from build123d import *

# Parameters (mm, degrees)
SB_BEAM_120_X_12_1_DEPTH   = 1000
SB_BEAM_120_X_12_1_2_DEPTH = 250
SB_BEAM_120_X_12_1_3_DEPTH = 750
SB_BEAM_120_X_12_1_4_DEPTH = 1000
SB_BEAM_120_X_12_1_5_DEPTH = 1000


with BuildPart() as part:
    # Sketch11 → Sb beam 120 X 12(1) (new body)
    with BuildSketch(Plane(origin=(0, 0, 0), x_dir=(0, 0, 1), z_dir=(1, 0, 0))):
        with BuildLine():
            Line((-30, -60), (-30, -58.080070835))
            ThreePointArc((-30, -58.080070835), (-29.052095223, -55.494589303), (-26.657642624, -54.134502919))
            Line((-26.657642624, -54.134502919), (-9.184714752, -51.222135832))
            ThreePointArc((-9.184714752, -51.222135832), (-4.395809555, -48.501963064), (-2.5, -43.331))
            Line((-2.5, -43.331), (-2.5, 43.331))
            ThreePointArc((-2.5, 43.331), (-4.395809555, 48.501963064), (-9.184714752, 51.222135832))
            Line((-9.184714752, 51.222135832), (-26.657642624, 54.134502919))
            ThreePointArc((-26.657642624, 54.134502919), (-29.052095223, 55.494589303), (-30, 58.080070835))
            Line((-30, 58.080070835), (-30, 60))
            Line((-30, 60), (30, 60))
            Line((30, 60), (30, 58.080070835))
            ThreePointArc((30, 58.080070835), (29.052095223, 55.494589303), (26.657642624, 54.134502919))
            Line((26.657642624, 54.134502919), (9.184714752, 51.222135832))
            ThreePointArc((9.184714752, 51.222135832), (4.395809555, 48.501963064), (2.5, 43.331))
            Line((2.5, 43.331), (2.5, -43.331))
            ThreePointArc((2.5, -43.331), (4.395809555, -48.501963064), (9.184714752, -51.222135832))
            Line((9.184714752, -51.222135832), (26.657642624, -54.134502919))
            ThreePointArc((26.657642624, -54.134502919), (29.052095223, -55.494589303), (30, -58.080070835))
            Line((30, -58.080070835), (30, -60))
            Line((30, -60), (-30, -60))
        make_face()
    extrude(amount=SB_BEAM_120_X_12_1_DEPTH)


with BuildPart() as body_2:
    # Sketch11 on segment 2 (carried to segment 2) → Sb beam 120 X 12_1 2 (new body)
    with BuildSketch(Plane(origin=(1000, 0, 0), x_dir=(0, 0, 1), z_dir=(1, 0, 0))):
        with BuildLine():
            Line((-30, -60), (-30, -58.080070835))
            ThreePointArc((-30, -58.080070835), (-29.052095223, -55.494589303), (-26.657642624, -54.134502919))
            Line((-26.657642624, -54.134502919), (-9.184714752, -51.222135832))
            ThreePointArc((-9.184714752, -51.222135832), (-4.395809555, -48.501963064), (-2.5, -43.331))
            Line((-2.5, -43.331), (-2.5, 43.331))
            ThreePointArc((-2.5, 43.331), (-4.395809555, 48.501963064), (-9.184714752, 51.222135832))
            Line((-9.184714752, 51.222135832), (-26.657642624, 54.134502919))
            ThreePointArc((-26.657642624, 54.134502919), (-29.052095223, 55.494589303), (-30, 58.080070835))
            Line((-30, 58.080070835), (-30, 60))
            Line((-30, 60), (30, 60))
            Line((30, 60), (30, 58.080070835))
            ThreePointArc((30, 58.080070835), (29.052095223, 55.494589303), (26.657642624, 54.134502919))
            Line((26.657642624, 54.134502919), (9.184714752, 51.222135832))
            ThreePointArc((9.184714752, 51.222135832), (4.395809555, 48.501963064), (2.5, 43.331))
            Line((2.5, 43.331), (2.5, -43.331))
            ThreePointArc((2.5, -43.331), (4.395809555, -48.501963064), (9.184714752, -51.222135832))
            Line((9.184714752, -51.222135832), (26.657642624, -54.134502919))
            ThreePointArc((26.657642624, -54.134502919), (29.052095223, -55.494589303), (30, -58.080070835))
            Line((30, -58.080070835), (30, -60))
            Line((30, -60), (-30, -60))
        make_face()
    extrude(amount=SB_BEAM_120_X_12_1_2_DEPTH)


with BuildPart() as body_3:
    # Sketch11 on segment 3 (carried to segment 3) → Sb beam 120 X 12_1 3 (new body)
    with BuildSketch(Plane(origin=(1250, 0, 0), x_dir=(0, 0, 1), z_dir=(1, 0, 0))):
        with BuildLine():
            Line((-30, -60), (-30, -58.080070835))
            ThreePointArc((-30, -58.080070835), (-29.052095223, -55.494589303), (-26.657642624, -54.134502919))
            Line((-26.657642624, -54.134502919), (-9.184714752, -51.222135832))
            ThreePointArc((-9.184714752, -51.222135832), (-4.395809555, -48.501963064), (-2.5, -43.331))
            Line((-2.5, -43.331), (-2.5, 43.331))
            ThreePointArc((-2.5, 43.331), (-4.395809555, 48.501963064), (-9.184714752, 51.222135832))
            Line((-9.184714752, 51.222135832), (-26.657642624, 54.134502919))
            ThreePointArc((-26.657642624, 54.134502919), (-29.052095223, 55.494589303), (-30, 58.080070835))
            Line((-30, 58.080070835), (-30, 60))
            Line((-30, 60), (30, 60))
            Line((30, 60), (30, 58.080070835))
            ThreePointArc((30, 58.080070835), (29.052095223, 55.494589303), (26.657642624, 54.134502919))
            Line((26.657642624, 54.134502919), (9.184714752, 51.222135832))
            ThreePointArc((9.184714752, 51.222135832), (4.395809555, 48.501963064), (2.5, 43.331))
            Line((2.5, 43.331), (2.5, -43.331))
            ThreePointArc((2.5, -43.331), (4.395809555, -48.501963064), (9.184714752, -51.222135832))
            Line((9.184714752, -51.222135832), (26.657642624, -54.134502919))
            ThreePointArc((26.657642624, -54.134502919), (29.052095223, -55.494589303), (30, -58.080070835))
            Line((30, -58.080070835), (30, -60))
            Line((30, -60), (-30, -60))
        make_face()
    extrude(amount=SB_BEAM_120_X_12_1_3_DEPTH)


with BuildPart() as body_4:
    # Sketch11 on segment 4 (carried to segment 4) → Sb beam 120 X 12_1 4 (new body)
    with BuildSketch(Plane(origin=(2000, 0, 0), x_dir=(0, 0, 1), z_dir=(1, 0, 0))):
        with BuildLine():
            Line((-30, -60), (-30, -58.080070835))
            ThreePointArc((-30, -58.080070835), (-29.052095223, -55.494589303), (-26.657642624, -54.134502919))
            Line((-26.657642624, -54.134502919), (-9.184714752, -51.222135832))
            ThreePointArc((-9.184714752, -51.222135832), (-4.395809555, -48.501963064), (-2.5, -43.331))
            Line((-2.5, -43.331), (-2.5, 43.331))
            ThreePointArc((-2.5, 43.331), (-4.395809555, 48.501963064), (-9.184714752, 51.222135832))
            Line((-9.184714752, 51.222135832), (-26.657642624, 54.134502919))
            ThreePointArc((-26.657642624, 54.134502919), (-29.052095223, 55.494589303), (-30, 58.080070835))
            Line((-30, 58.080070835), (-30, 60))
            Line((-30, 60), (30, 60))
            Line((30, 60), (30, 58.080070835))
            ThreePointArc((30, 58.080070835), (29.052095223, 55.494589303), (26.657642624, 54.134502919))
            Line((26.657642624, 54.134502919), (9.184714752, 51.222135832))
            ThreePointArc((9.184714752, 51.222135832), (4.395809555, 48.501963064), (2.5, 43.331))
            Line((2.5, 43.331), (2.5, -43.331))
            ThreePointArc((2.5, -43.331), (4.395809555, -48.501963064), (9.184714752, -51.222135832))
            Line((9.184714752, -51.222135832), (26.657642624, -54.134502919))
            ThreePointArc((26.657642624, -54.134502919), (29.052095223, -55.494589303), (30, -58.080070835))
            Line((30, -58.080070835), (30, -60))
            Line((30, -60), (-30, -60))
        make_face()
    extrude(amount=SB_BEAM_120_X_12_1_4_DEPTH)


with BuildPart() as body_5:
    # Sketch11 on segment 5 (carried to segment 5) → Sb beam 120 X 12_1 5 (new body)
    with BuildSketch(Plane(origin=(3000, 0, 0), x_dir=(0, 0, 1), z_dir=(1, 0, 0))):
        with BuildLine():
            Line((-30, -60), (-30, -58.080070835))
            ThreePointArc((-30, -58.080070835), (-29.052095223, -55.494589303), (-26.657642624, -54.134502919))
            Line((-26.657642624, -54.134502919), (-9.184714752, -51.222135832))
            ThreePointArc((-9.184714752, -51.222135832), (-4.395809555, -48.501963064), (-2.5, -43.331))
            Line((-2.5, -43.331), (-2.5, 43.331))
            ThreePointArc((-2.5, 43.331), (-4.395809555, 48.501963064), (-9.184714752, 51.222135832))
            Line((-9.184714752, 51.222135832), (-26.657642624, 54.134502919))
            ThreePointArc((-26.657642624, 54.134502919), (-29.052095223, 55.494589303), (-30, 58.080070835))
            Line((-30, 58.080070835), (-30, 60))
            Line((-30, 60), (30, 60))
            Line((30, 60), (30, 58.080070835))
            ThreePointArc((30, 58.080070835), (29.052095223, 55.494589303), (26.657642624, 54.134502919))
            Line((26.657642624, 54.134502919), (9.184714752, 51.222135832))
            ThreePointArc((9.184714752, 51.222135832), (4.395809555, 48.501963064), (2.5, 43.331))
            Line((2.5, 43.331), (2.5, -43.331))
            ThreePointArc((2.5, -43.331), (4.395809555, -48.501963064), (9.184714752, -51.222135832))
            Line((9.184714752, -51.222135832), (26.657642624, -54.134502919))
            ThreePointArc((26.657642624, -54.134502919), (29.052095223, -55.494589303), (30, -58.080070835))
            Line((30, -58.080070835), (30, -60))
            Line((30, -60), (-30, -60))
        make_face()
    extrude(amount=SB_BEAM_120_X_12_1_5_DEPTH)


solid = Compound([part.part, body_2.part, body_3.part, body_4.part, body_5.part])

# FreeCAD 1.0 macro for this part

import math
import FreeCAD as App
import Part
import Sketcher

V = App.Vector
Q = App.Units.Quantity

doc = App.newDocument("Part")
body = doc.addObject("PartDesign::Body", "Body")

# Sketch on YZ plane
sketch1 = body.newObject("Sketcher::SketchObject", "Sketch")
sketch1.AttachmentSupport = (doc.getObject("YZ_Plane"), [""])
sketch1.MapMode = "FlatFace"
sketch1.addGeometry(Part.LineSegment(V(58.1, -30, 0), V(60, -30, 0)), False)
sketch1.addGeometry(Part.LineSegment(V(60, -30, 0), V(60, 30, 0)), False)
sketch1.addGeometry(Part.LineSegment(V(60, 30, 0), V(58.1, 30, 0)), False)
sketch1.addGeometry(Part.ArcOfCircle(Part.Circle(V(58.1, 26, 0), V(0, 0, 1), 4), math.radians(90), math.radians(171)), False)
sketch1.addGeometry(Part.LineSegment(V(54.1, 26.7, 0), V(51.2, 9.2, 0)), False)
sketch1.addGeometry(Part.ArcOfCircle(Part.Circle(V(43.3, 10.5, 0), V(0, 0, 1), 8), math.radians(-90), math.radians(-9)), False)
sketch1.addGeometry(Part.LineSegment(V(43.3, 2.5, 0), V(-43.3, 2.5, 0)), False)
sketch1.addGeometry(Part.ArcOfCircle(Part.Circle(V(-43.3, 10.5, 0), V(0, 0, 1), 8), math.radians(-171), math.radians(-90)), False)
sketch1.addGeometry(Part.LineSegment(V(-51.2, 9.2, 0), V(-54.1, 26.7, 0)), False)
sketch1.addGeometry(Part.ArcOfCircle(Part.Circle(V(-58.1, 26, 0), V(0, 0, 1), 4), math.radians(9), math.radians(90)), False)
sketch1.addGeometry(Part.LineSegment(V(-58.1, 30, 0), V(-60, 30, 0)), False)
sketch1.addGeometry(Part.LineSegment(V(-60, 30, 0), V(-60, -30, 0)), False)
sketch1.addGeometry(Part.LineSegment(V(-60, -30, 0), V(-58.1, -30, 0)), False)
sketch1.addGeometry(Part.ArcOfCircle(Part.Circle(V(-58.1, -26, 0), V(0, 0, 1), 4), math.radians(-90), math.radians(-9)), False)
sketch1.addGeometry(Part.LineSegment(V(-54.1, -26.7, 0), V(-51.2, -9.2, 0)), False)
sketch1.addGeometry(Part.ArcOfCircle(Part.Circle(V(-43.3, -10.5, 0), V(0, 0, 1), 8), math.radians(90), math.radians(171)), False)
sketch1.addGeometry(Part.LineSegment(V(-43.3, -2.5, 0), V(43.3, -2.5, 0)), False)
sketch1.addGeometry(Part.ArcOfCircle(Part.Circle(V(43.3, -10.5, 0), V(0, 0, 1), 8), math.radians(9), math.radians(90)), False)
sketch1.addGeometry(Part.LineSegment(V(51.2, -9.2, 0), V(54.1, -26.7, 0)), False)
sketch1.addGeometry(Part.ArcOfCircle(Part.Circle(V(58.1, -26, 0), V(0, 0, 1), 4), math.radians(-171), math.radians(-90)), False)
sketch1.addConstraint(Sketcher.Constraint("Coincident", 0, 2, 1, 1))
sketch1.addConstraint(Sketcher.Constraint("Coincident", 1, 2, 2, 1))
sketch1.addConstraint(Sketcher.Constraint("Tangent", 2, 2, 3, 1))
sketch1.addConstraint(Sketcher.Constraint("Tangent", 3, 2, 4, 1))
sketch1.addConstraint(Sketcher.Constraint("Tangent", 4, 2, 5, 2))
sketch1.addConstraint(Sketcher.Constraint("Tangent", 5, 1, 6, 1))
sketch1.addConstraint(Sketcher.Constraint("Tangent", 6, 2, 7, 2))
sketch1.addConstraint(Sketcher.Constraint("Tangent", 7, 1, 8, 1))
sketch1.addConstraint(Sketcher.Constraint("Tangent", 8, 2, 9, 1))
sketch1.addConstraint(Sketcher.Constraint("Tangent", 9, 2, 10, 1))
sketch1.addConstraint(Sketcher.Constraint("Coincident", 10, 2, 11, 1))
sketch1.addConstraint(Sketcher.Constraint("Coincident", 11, 2, 12, 1))
sketch1.addConstraint(Sketcher.Constraint("Tangent", 12, 2, 13, 1))
sketch1.addConstraint(Sketcher.Constraint("Tangent", 13, 2, 14, 1))
sketch1.addConstraint(Sketcher.Constraint("Tangent", 14, 2, 15, 2))
sketch1.addConstraint(Sketcher.Constraint("Tangent", 15, 1, 16, 1))
sketch1.addConstraint(Sketcher.Constraint("Tangent", 16, 2, 17, 2))
sketch1.addConstraint(Sketcher.Constraint("Tangent", 17, 1, 18, 1))
sketch1.addConstraint(Sketcher.Constraint("Tangent", 18, 2, 19, 1))
sketch1.addConstraint(Sketcher.Constraint("Tangent", 19, 2, 0, 1))
sketch1.addConstraint(Sketcher.Constraint("Horizontal", 0))
sketch1.addConstraint(Sketcher.Constraint("Vertical", 1))
sketch1.addConstraint(Sketcher.Constraint("Horizontal", 2))
sketch1.addConstraint(Sketcher.Constraint("Horizontal", 6))
sketch1.addConstraint(Sketcher.Constraint("Horizontal", 10))
sketch1.addConstraint(Sketcher.Constraint("Vertical", 11))
sketch1.addConstraint(Sketcher.Constraint("Horizontal", 12))
sketch1.addConstraint(Sketcher.Constraint("Horizontal", 16))
sketch1.addConstraint(Sketcher.Constraint("Equal", 5, 7))
sketch1.addConstraint(Sketcher.Constraint("Equal", 3, 9))
sketch1.addConstraint(Sketcher.Constraint("Equal", 9, 13))
sketch1.addConstraint(Sketcher.Constraint("Equal", 7, 15))
sketch1.addConstraint(Sketcher.Constraint("Equal", 15, 17))
sketch1.addConstraint(Sketcher.Constraint("Equal", 13, 19))
sketch1.addConstraint(Sketcher.Constraint("Symmetric", 3, 3, 13, 3, -1, 1))
sketch1.addConstraint(Sketcher.Constraint("Symmetric", 5, 3, 15, 3, -1, 1))
sketch1.addConstraint(Sketcher.Constraint("Symmetric", 9, 3, 19, 3, -1, 1))
sketch1.addConstraint(Sketcher.Constraint("Symmetric", 3, 3, 9, 3, -2))
sketch1.addConstraint(Sketcher.Constraint("Parallel", 8, 18))
sketch1.addConstraint(Sketcher.Constraint("Horizontal", 4, 2, 7, 1))
sketch1.addConstraint(Sketcher.Constraint("Equal", 2, 10))
sketch1.addConstraint(Sketcher.Constraint("Radius", 3, Q("4 mm")))
sketch1.addConstraint(Sketcher.Constraint("Radius", 5, Q("8 mm")))
sketch1.addConstraint(Sketcher.Constraint("DistanceY", 1, 1, 1, 2, Q("60 mm")))
sketch1.addConstraint(Sketcher.Constraint("DistanceX", -1, 1, 0, 2, Q("60 mm")))
sketch1.addConstraint(Sketcher.Constraint("DistanceY", 15, 3, 7, 3, Q("21 mm")))
sketch1.addConstraint(Sketcher.Constraint("DistanceX", 6, 2, 6, 1, Q("86.662 mm")))
sketch1.addConstraint(Sketcher.Constraint("DistanceX", 0, 1, 0, 2, Q("1.919929 mm")))
pad1 = body.newObject("PartDesign::Pad", "Pad")
pad1.Profile = sketch1
pad1.Length = 1000
body2 = doc.addObject("PartDesign::Body", "Body001")

# Sketch on YZ plane
sketch2 = body2.newObject("Sketcher::SketchObject", "Sketch001")
sketch2.AttachmentSupport = (doc.getObject("YZ_Plane001"), [""])
sketch2.MapMode = "FlatFace"
sketch2.AttachmentOffset = App.Placement(V(0, 0, 1000), App.Rotation())
sketch2.addGeometry(Part.LineSegment(V(58.1, -30, 0), V(60, -30, 0)), False)
sketch2.addGeometry(Part.LineSegment(V(60, -30, 0), V(60, 30, 0)), False)
sketch2.addGeometry(Part.LineSegment(V(60, 30, 0), V(58.1, 30, 0)), False)
sketch2.addGeometry(Part.ArcOfCircle(Part.Circle(V(58.1, 26, 0), V(0, 0, 1), 4), math.radians(90), math.radians(171)), False)
sketch2.addGeometry(Part.LineSegment(V(54.1, 26.7, 0), V(51.2, 9.2, 0)), False)
sketch2.addGeometry(Part.ArcOfCircle(Part.Circle(V(43.3, 10.5, 0), V(0, 0, 1), 8), math.radians(-90), math.radians(-9)), False)
sketch2.addGeometry(Part.LineSegment(V(43.3, 2.5, 0), V(-43.3, 2.5, 0)), False)
sketch2.addGeometry(Part.ArcOfCircle(Part.Circle(V(-43.3, 10.5, 0), V(0, 0, 1), 8), math.radians(-171), math.radians(-90)), False)
sketch2.addGeometry(Part.LineSegment(V(-51.2, 9.2, 0), V(-54.1, 26.7, 0)), False)
sketch2.addGeometry(Part.ArcOfCircle(Part.Circle(V(-58.1, 26, 0), V(0, 0, 1), 4), math.radians(9), math.radians(90)), False)
sketch2.addGeometry(Part.LineSegment(V(-58.1, 30, 0), V(-60, 30, 0)), False)
sketch2.addGeometry(Part.LineSegment(V(-60, 30, 0), V(-60, -30, 0)), False)
sketch2.addGeometry(Part.LineSegment(V(-60, -30, 0), V(-58.1, -30, 0)), False)
sketch2.addGeometry(Part.ArcOfCircle(Part.Circle(V(-58.1, -26, 0), V(0, 0, 1), 4), math.radians(-90), math.radians(-9)), False)
sketch2.addGeometry(Part.LineSegment(V(-54.1, -26.7, 0), V(-51.2, -9.2, 0)), False)
sketch2.addGeometry(Part.ArcOfCircle(Part.Circle(V(-43.3, -10.5, 0), V(0, 0, 1), 8), math.radians(90), math.radians(171)), False)
sketch2.addGeometry(Part.LineSegment(V(-43.3, -2.5, 0), V(43.3, -2.5, 0)), False)
sketch2.addGeometry(Part.ArcOfCircle(Part.Circle(V(43.3, -10.5, 0), V(0, 0, 1), 8), math.radians(9), math.radians(90)), False)
sketch2.addGeometry(Part.LineSegment(V(51.2, -9.2, 0), V(54.1, -26.7, 0)), False)
sketch2.addGeometry(Part.ArcOfCircle(Part.Circle(V(58.1, -26, 0), V(0, 0, 1), 4), math.radians(-171), math.radians(-90)), False)
sketch2.addConstraint(Sketcher.Constraint("Coincident", 0, 2, 1, 1))
sketch2.addConstraint(Sketcher.Constraint("Coincident", 1, 2, 2, 1))
sketch2.addConstraint(Sketcher.Constraint("Tangent", 2, 2, 3, 1))
sketch2.addConstraint(Sketcher.Constraint("Tangent", 3, 2, 4, 1))
sketch2.addConstraint(Sketcher.Constraint("Tangent", 4, 2, 5, 2))
sketch2.addConstraint(Sketcher.Constraint("Tangent", 5, 1, 6, 1))
sketch2.addConstraint(Sketcher.Constraint("Tangent", 6, 2, 7, 2))
sketch2.addConstraint(Sketcher.Constraint("Tangent", 7, 1, 8, 1))
sketch2.addConstraint(Sketcher.Constraint("Tangent", 8, 2, 9, 1))
sketch2.addConstraint(Sketcher.Constraint("Tangent", 9, 2, 10, 1))
sketch2.addConstraint(Sketcher.Constraint("Coincident", 10, 2, 11, 1))
sketch2.addConstraint(Sketcher.Constraint("Coincident", 11, 2, 12, 1))
sketch2.addConstraint(Sketcher.Constraint("Tangent", 12, 2, 13, 1))
sketch2.addConstraint(Sketcher.Constraint("Tangent", 13, 2, 14, 1))
sketch2.addConstraint(Sketcher.Constraint("Tangent", 14, 2, 15, 2))
sketch2.addConstraint(Sketcher.Constraint("Tangent", 15, 1, 16, 1))
sketch2.addConstraint(Sketcher.Constraint("Tangent", 16, 2, 17, 2))
sketch2.addConstraint(Sketcher.Constraint("Tangent", 17, 1, 18, 1))
sketch2.addConstraint(Sketcher.Constraint("Tangent", 18, 2, 19, 1))
sketch2.addConstraint(Sketcher.Constraint("Tangent", 19, 2, 0, 1))
sketch2.addConstraint(Sketcher.Constraint("Horizontal", 0))
sketch2.addConstraint(Sketcher.Constraint("Vertical", 1))
sketch2.addConstraint(Sketcher.Constraint("Horizontal", 2))
sketch2.addConstraint(Sketcher.Constraint("Horizontal", 6))
sketch2.addConstraint(Sketcher.Constraint("Horizontal", 10))
sketch2.addConstraint(Sketcher.Constraint("Vertical", 11))
sketch2.addConstraint(Sketcher.Constraint("Horizontal", 12))
sketch2.addConstraint(Sketcher.Constraint("Horizontal", 16))
sketch2.addConstraint(Sketcher.Constraint("Equal", 5, 7))
sketch2.addConstraint(Sketcher.Constraint("Equal", 3, 9))
sketch2.addConstraint(Sketcher.Constraint("Equal", 9, 13))
sketch2.addConstraint(Sketcher.Constraint("Equal", 7, 15))
sketch2.addConstraint(Sketcher.Constraint("Equal", 15, 17))
sketch2.addConstraint(Sketcher.Constraint("Equal", 13, 19))
sketch2.addConstraint(Sketcher.Constraint("Symmetric", 3, 3, 13, 3, -1, 1))
sketch2.addConstraint(Sketcher.Constraint("Symmetric", 5, 3, 15, 3, -1, 1))
sketch2.addConstraint(Sketcher.Constraint("Symmetric", 9, 3, 19, 3, -1, 1))
sketch2.addConstraint(Sketcher.Constraint("Symmetric", 3, 3, 9, 3, -2))
sketch2.addConstraint(Sketcher.Constraint("Parallel", 8, 18))
sketch2.addConstraint(Sketcher.Constraint("Horizontal", 4, 2, 7, 1))
sketch2.addConstraint(Sketcher.Constraint("Equal", 2, 10))
sketch2.addConstraint(Sketcher.Constraint("Radius", 3, Q("4 mm")))
sketch2.addConstraint(Sketcher.Constraint("Radius", 5, Q("8 mm")))
sketch2.addConstraint(Sketcher.Constraint("DistanceY", 1, 1, 1, 2, Q("60 mm")))
sketch2.addConstraint(Sketcher.Constraint("DistanceX", -1, 1, 0, 2, Q("60 mm")))
sketch2.addConstraint(Sketcher.Constraint("DistanceY", 15, 3, 7, 3, Q("21 mm")))
sketch2.addConstraint(Sketcher.Constraint("DistanceX", 6, 2, 6, 1, Q("86.662 mm")))
sketch2.addConstraint(Sketcher.Constraint("DistanceX", 0, 1, 0, 2, Q("1.919929 mm")))
pad2 = body2.newObject("PartDesign::Pad", "Pad001")
pad2.Profile = sketch2
pad2.Length = 250
body3 = doc.addObject("PartDesign::Body", "Body002")

# Sketch on YZ plane
sketch3 = body3.newObject("Sketcher::SketchObject", "Sketch002")
sketch3.AttachmentSupport = (doc.getObject("YZ_Plane002"), [""])
sketch3.MapMode = "FlatFace"
sketch3.AttachmentOffset = App.Placement(V(0, 0, 1250), App.Rotation())
sketch3.addGeometry(Part.LineSegment(V(58.1, -30, 0), V(60, -30, 0)), False)
sketch3.addGeometry(Part.LineSegment(V(60, -30, 0), V(60, 30, 0)), False)
sketch3.addGeometry(Part.LineSegment(V(60, 30, 0), V(58.1, 30, 0)), False)
sketch3.addGeometry(Part.ArcOfCircle(Part.Circle(V(58.1, 26, 0), V(0, 0, 1), 4), math.radians(90), math.radians(171)), False)
sketch3.addGeometry(Part.LineSegment(V(54.1, 26.7, 0), V(51.2, 9.2, 0)), False)
sketch3.addGeometry(Part.ArcOfCircle(Part.Circle(V(43.3, 10.5, 0), V(0, 0, 1), 8), math.radians(-90), math.radians(-9)), False)
sketch3.addGeometry(Part.LineSegment(V(43.3, 2.5, 0), V(-43.3, 2.5, 0)), False)
sketch3.addGeometry(Part.ArcOfCircle(Part.Circle(V(-43.3, 10.5, 0), V(0, 0, 1), 8), math.radians(-171), math.radians(-90)), False)
sketch3.addGeometry(Part.LineSegment(V(-51.2, 9.2, 0), V(-54.1, 26.7, 0)), False)
sketch3.addGeometry(Part.ArcOfCircle(Part.Circle(V(-58.1, 26, 0), V(0, 0, 1), 4), math.radians(9), math.radians(90)), False)
sketch3.addGeometry(Part.LineSegment(V(-58.1, 30, 0), V(-60, 30, 0)), False)
sketch3.addGeometry(Part.LineSegment(V(-60, 30, 0), V(-60, -30, 0)), False)
sketch3.addGeometry(Part.LineSegment(V(-60, -30, 0), V(-58.1, -30, 0)), False)
sketch3.addGeometry(Part.ArcOfCircle(Part.Circle(V(-58.1, -26, 0), V(0, 0, 1), 4), math.radians(-90), math.radians(-9)), False)
sketch3.addGeometry(Part.LineSegment(V(-54.1, -26.7, 0), V(-51.2, -9.2, 0)), False)
sketch3.addGeometry(Part.ArcOfCircle(Part.Circle(V(-43.3, -10.5, 0), V(0, 0, 1), 8), math.radians(90), math.radians(171)), False)
sketch3.addGeometry(Part.LineSegment(V(-43.3, -2.5, 0), V(43.3, -2.5, 0)), False)
sketch3.addGeometry(Part.ArcOfCircle(Part.Circle(V(43.3, -10.5, 0), V(0, 0, 1), 8), math.radians(9), math.radians(90)), False)
sketch3.addGeometry(Part.LineSegment(V(51.2, -9.2, 0), V(54.1, -26.7, 0)), False)
sketch3.addGeometry(Part.ArcOfCircle(Part.Circle(V(58.1, -26, 0), V(0, 0, 1), 4), math.radians(-171), math.radians(-90)), False)
sketch3.addConstraint(Sketcher.Constraint("Coincident", 0, 2, 1, 1))
sketch3.addConstraint(Sketcher.Constraint("Coincident", 1, 2, 2, 1))
sketch3.addConstraint(Sketcher.Constraint("Tangent", 2, 2, 3, 1))
sketch3.addConstraint(Sketcher.Constraint("Tangent", 3, 2, 4, 1))
sketch3.addConstraint(Sketcher.Constraint("Tangent", 4, 2, 5, 2))
sketch3.addConstraint(Sketcher.Constraint("Tangent", 5, 1, 6, 1))
sketch3.addConstraint(Sketcher.Constraint("Tangent", 6, 2, 7, 2))
sketch3.addConstraint(Sketcher.Constraint("Tangent", 7, 1, 8, 1))
sketch3.addConstraint(Sketcher.Constraint("Tangent", 8, 2, 9, 1))
sketch3.addConstraint(Sketcher.Constraint("Tangent", 9, 2, 10, 1))
sketch3.addConstraint(Sketcher.Constraint("Coincident", 10, 2, 11, 1))
sketch3.addConstraint(Sketcher.Constraint("Coincident", 11, 2, 12, 1))
sketch3.addConstraint(Sketcher.Constraint("Tangent", 12, 2, 13, 1))
sketch3.addConstraint(Sketcher.Constraint("Tangent", 13, 2, 14, 1))
sketch3.addConstraint(Sketcher.Constraint("Tangent", 14, 2, 15, 2))
sketch3.addConstraint(Sketcher.Constraint("Tangent", 15, 1, 16, 1))
sketch3.addConstraint(Sketcher.Constraint("Tangent", 16, 2, 17, 2))
sketch3.addConstraint(Sketcher.Constraint("Tangent", 17, 1, 18, 1))
sketch3.addConstraint(Sketcher.Constraint("Tangent", 18, 2, 19, 1))
sketch3.addConstraint(Sketcher.Constraint("Tangent", 19, 2, 0, 1))
sketch3.addConstraint(Sketcher.Constraint("Horizontal", 0))
sketch3.addConstraint(Sketcher.Constraint("Vertical", 1))
sketch3.addConstraint(Sketcher.Constraint("Horizontal", 2))
sketch3.addConstraint(Sketcher.Constraint("Horizontal", 6))
sketch3.addConstraint(Sketcher.Constraint("Horizontal", 10))
sketch3.addConstraint(Sketcher.Constraint("Vertical", 11))
sketch3.addConstraint(Sketcher.Constraint("Horizontal", 12))
sketch3.addConstraint(Sketcher.Constraint("Horizontal", 16))
sketch3.addConstraint(Sketcher.Constraint("Equal", 5, 7))
sketch3.addConstraint(Sketcher.Constraint("Equal", 3, 9))
sketch3.addConstraint(Sketcher.Constraint("Equal", 9, 13))
sketch3.addConstraint(Sketcher.Constraint("Equal", 7, 15))
sketch3.addConstraint(Sketcher.Constraint("Equal", 15, 17))
sketch3.addConstraint(Sketcher.Constraint("Equal", 13, 19))
sketch3.addConstraint(Sketcher.Constraint("Symmetric", 3, 3, 13, 3, -1, 1))
sketch3.addConstraint(Sketcher.Constraint("Symmetric", 5, 3, 15, 3, -1, 1))
sketch3.addConstraint(Sketcher.Constraint("Symmetric", 9, 3, 19, 3, -1, 1))
sketch3.addConstraint(Sketcher.Constraint("Symmetric", 3, 3, 9, 3, -2))
sketch3.addConstraint(Sketcher.Constraint("Parallel", 8, 18))
sketch3.addConstraint(Sketcher.Constraint("Horizontal", 4, 2, 7, 1))
sketch3.addConstraint(Sketcher.Constraint("Equal", 2, 10))
sketch3.addConstraint(Sketcher.Constraint("Radius", 3, Q("4 mm")))
sketch3.addConstraint(Sketcher.Constraint("Radius", 5, Q("8 mm")))
sketch3.addConstraint(Sketcher.Constraint("DistanceY", 1, 1, 1, 2, Q("60 mm")))
sketch3.addConstraint(Sketcher.Constraint("DistanceX", -1, 1, 0, 2, Q("60 mm")))
sketch3.addConstraint(Sketcher.Constraint("DistanceY", 15, 3, 7, 3, Q("21 mm")))
sketch3.addConstraint(Sketcher.Constraint("DistanceX", 6, 2, 6, 1, Q("86.662 mm")))
sketch3.addConstraint(Sketcher.Constraint("DistanceX", 0, 1, 0, 2, Q("1.919929 mm")))
pad3 = body3.newObject("PartDesign::Pad", "Pad002")
pad3.Profile = sketch3
pad3.Length = 750
body4 = doc.addObject("PartDesign::Body", "Body003")

# Sketch on YZ plane
sketch4 = body4.newObject("Sketcher::SketchObject", "Sketch003")
sketch4.AttachmentSupport = (doc.getObject("YZ_Plane003"), [""])
sketch4.MapMode = "FlatFace"
sketch4.AttachmentOffset = App.Placement(V(0, 0, 2000), App.Rotation())
sketch4.addGeometry(Part.LineSegment(V(58.1, -30, 0), V(60, -30, 0)), False)
sketch4.addGeometry(Part.LineSegment(V(60, -30, 0), V(60, 30, 0)), False)
sketch4.addGeometry(Part.LineSegment(V(60, 30, 0), V(58.1, 30, 0)), False)
sketch4.addGeometry(Part.ArcOfCircle(Part.Circle(V(58.1, 26, 0), V(0, 0, 1), 4), math.radians(90), math.radians(171)), False)
sketch4.addGeometry(Part.LineSegment(V(54.1, 26.7, 0), V(51.2, 9.2, 0)), False)
sketch4.addGeometry(Part.ArcOfCircle(Part.Circle(V(43.3, 10.5, 0), V(0, 0, 1), 8), math.radians(-90), math.radians(-9)), False)
sketch4.addGeometry(Part.LineSegment(V(43.3, 2.5, 0), V(-43.3, 2.5, 0)), False)
sketch4.addGeometry(Part.ArcOfCircle(Part.Circle(V(-43.3, 10.5, 0), V(0, 0, 1), 8), math.radians(-171), math.radians(-90)), False)
sketch4.addGeometry(Part.LineSegment(V(-51.2, 9.2, 0), V(-54.1, 26.7, 0)), False)
sketch4.addGeometry(Part.ArcOfCircle(Part.Circle(V(-58.1, 26, 0), V(0, 0, 1), 4), math.radians(9), math.radians(90)), False)
sketch4.addGeometry(Part.LineSegment(V(-58.1, 30, 0), V(-60, 30, 0)), False)
sketch4.addGeometry(Part.LineSegment(V(-60, 30, 0), V(-60, -30, 0)), False)
sketch4.addGeometry(Part.LineSegment(V(-60, -30, 0), V(-58.1, -30, 0)), False)
sketch4.addGeometry(Part.ArcOfCircle(Part.Circle(V(-58.1, -26, 0), V(0, 0, 1), 4), math.radians(-90), math.radians(-9)), False)
sketch4.addGeometry(Part.LineSegment(V(-54.1, -26.7, 0), V(-51.2, -9.2, 0)), False)
sketch4.addGeometry(Part.ArcOfCircle(Part.Circle(V(-43.3, -10.5, 0), V(0, 0, 1), 8), math.radians(90), math.radians(171)), False)
sketch4.addGeometry(Part.LineSegment(V(-43.3, -2.5, 0), V(43.3, -2.5, 0)), False)
sketch4.addGeometry(Part.ArcOfCircle(Part.Circle(V(43.3, -10.5, 0), V(0, 0, 1), 8), math.radians(9), math.radians(90)), False)
sketch4.addGeometry(Part.LineSegment(V(51.2, -9.2, 0), V(54.1, -26.7, 0)), False)
sketch4.addGeometry(Part.ArcOfCircle(Part.Circle(V(58.1, -26, 0), V(0, 0, 1), 4), math.radians(-171), math.radians(-90)), False)
sketch4.addConstraint(Sketcher.Constraint("Coincident", 0, 2, 1, 1))
sketch4.addConstraint(Sketcher.Constraint("Coincident", 1, 2, 2, 1))
sketch4.addConstraint(Sketcher.Constraint("Tangent", 2, 2, 3, 1))
sketch4.addConstraint(Sketcher.Constraint("Tangent", 3, 2, 4, 1))
sketch4.addConstraint(Sketcher.Constraint("Tangent", 4, 2, 5, 2))
sketch4.addConstraint(Sketcher.Constraint("Tangent", 5, 1, 6, 1))
sketch4.addConstraint(Sketcher.Constraint("Tangent", 6, 2, 7, 2))
sketch4.addConstraint(Sketcher.Constraint("Tangent", 7, 1, 8, 1))
sketch4.addConstraint(Sketcher.Constraint("Tangent", 8, 2, 9, 1))
sketch4.addConstraint(Sketcher.Constraint("Tangent", 9, 2, 10, 1))
sketch4.addConstraint(Sketcher.Constraint("Coincident", 10, 2, 11, 1))
sketch4.addConstraint(Sketcher.Constraint("Coincident", 11, 2, 12, 1))
sketch4.addConstraint(Sketcher.Constraint("Tangent", 12, 2, 13, 1))
sketch4.addConstraint(Sketcher.Constraint("Tangent", 13, 2, 14, 1))
sketch4.addConstraint(Sketcher.Constraint("Tangent", 14, 2, 15, 2))
sketch4.addConstraint(Sketcher.Constraint("Tangent", 15, 1, 16, 1))
sketch4.addConstraint(Sketcher.Constraint("Tangent", 16, 2, 17, 2))
sketch4.addConstraint(Sketcher.Constraint("Tangent", 17, 1, 18, 1))
sketch4.addConstraint(Sketcher.Constraint("Tangent", 18, 2, 19, 1))
sketch4.addConstraint(Sketcher.Constraint("Tangent", 19, 2, 0, 1))
sketch4.addConstraint(Sketcher.Constraint("Horizontal", 0))
sketch4.addConstraint(Sketcher.Constraint("Vertical", 1))
sketch4.addConstraint(Sketcher.Constraint("Horizontal", 2))
sketch4.addConstraint(Sketcher.Constraint("Horizontal", 6))
sketch4.addConstraint(Sketcher.Constraint("Horizontal", 10))
sketch4.addConstraint(Sketcher.Constraint("Vertical", 11))
sketch4.addConstraint(Sketcher.Constraint("Horizontal", 12))
sketch4.addConstraint(Sketcher.Constraint("Horizontal", 16))
sketch4.addConstraint(Sketcher.Constraint("Equal", 5, 7))
sketch4.addConstraint(Sketcher.Constraint("Equal", 3, 9))
sketch4.addConstraint(Sketcher.Constraint("Equal", 9, 13))
sketch4.addConstraint(Sketcher.Constraint("Equal", 7, 15))
sketch4.addConstraint(Sketcher.Constraint("Equal", 15, 17))
sketch4.addConstraint(Sketcher.Constraint("Equal", 13, 19))
sketch4.addConstraint(Sketcher.Constraint("Symmetric", 3, 3, 13, 3, -1, 1))
sketch4.addConstraint(Sketcher.Constraint("Symmetric", 5, 3, 15, 3, -1, 1))
sketch4.addConstraint(Sketcher.Constraint("Symmetric", 9, 3, 19, 3, -1, 1))
sketch4.addConstraint(Sketcher.Constraint("Symmetric", 3, 3, 9, 3, -2))
sketch4.addConstraint(Sketcher.Constraint("Parallel", 8, 18))
sketch4.addConstraint(Sketcher.Constraint("Horizontal", 4, 2, 7, 1))
sketch4.addConstraint(Sketcher.Constraint("Equal", 2, 10))
sketch4.addConstraint(Sketcher.Constraint("Radius", 3, Q("4 mm")))
sketch4.addConstraint(Sketcher.Constraint("Radius", 5, Q("8 mm")))
sketch4.addConstraint(Sketcher.Constraint("DistanceY", 1, 1, 1, 2, Q("60 mm")))
sketch4.addConstraint(Sketcher.Constraint("DistanceX", -1, 1, 0, 2, Q("60 mm")))
sketch4.addConstraint(Sketcher.Constraint("DistanceY", 15, 3, 7, 3, Q("21 mm")))
sketch4.addConstraint(Sketcher.Constraint("DistanceX", 6, 2, 6, 1, Q("86.662 mm")))
sketch4.addConstraint(Sketcher.Constraint("DistanceX", 0, 1, 0, 2, Q("1.919929 mm")))
pad4 = body4.newObject("PartDesign::Pad", "Pad003")
pad4.Profile = sketch4
pad4.Length = 1000
body5 = doc.addObject("PartDesign::Body", "Body004")

# Sketch on YZ plane
sketch5 = body5.newObject("Sketcher::SketchObject", "Sketch004")
sketch5.AttachmentSupport = (doc.getObject("YZ_Plane004"), [""])
sketch5.MapMode = "FlatFace"
sketch5.AttachmentOffset = App.Placement(V(0, 0, 3000), App.Rotation())
sketch5.addGeometry(Part.LineSegment(V(58.1, -30, 0), V(60, -30, 0)), False)
sketch5.addGeometry(Part.LineSegment(V(60, -30, 0), V(60, 30, 0)), False)
sketch5.addGeometry(Part.LineSegment(V(60, 30, 0), V(58.1, 30, 0)), False)
sketch5.addGeometry(Part.ArcOfCircle(Part.Circle(V(58.1, 26, 0), V(0, 0, 1), 4), math.radians(90), math.radians(171)), False)
sketch5.addGeometry(Part.LineSegment(V(54.1, 26.7, 0), V(51.2, 9.2, 0)), False)
sketch5.addGeometry(Part.ArcOfCircle(Part.Circle(V(43.3, 10.5, 0), V(0, 0, 1), 8), math.radians(-90), math.radians(-9)), False)
sketch5.addGeometry(Part.LineSegment(V(43.3, 2.5, 0), V(-43.3, 2.5, 0)), False)
sketch5.addGeometry(Part.ArcOfCircle(Part.Circle(V(-43.3, 10.5, 0), V(0, 0, 1), 8), math.radians(-171), math.radians(-90)), False)
sketch5.addGeometry(Part.LineSegment(V(-51.2, 9.2, 0), V(-54.1, 26.7, 0)), False)
sketch5.addGeometry(Part.ArcOfCircle(Part.Circle(V(-58.1, 26, 0), V(0, 0, 1), 4), math.radians(9), math.radians(90)), False)
sketch5.addGeometry(Part.LineSegment(V(-58.1, 30, 0), V(-60, 30, 0)), False)
sketch5.addGeometry(Part.LineSegment(V(-60, 30, 0), V(-60, -30, 0)), False)
sketch5.addGeometry(Part.LineSegment(V(-60, -30, 0), V(-58.1, -30, 0)), False)
sketch5.addGeometry(Part.ArcOfCircle(Part.Circle(V(-58.1, -26, 0), V(0, 0, 1), 4), math.radians(-90), math.radians(-9)), False)
sketch5.addGeometry(Part.LineSegment(V(-54.1, -26.7, 0), V(-51.2, -9.2, 0)), False)
sketch5.addGeometry(Part.ArcOfCircle(Part.Circle(V(-43.3, -10.5, 0), V(0, 0, 1), 8), math.radians(90), math.radians(171)), False)
sketch5.addGeometry(Part.LineSegment(V(-43.3, -2.5, 0), V(43.3, -2.5, 0)), False)
sketch5.addGeometry(Part.ArcOfCircle(Part.Circle(V(43.3, -10.5, 0), V(0, 0, 1), 8), math.radians(9), math.radians(90)), False)
sketch5.addGeometry(Part.LineSegment(V(51.2, -9.2, 0), V(54.1, -26.7, 0)), False)
sketch5.addGeometry(Part.ArcOfCircle(Part.Circle(V(58.1, -26, 0), V(0, 0, 1), 4), math.radians(-171), math.radians(-90)), False)
sketch5.addConstraint(Sketcher.Constraint("Coincident", 0, 2, 1, 1))
sketch5.addConstraint(Sketcher.Constraint("Coincident", 1, 2, 2, 1))
sketch5.addConstraint(Sketcher.Constraint("Tangent", 2, 2, 3, 1))
sketch5.addConstraint(Sketcher.Constraint("Tangent", 3, 2, 4, 1))
sketch5.addConstraint(Sketcher.Constraint("Tangent", 4, 2, 5, 2))
sketch5.addConstraint(Sketcher.Constraint("Tangent", 5, 1, 6, 1))
sketch5.addConstraint(Sketcher.Constraint("Tangent", 6, 2, 7, 2))
sketch5.addConstraint(Sketcher.Constraint("Tangent", 7, 1, 8, 1))
sketch5.addConstraint(Sketcher.Constraint("Tangent", 8, 2, 9, 1))
sketch5.addConstraint(Sketcher.Constraint("Tangent", 9, 2, 10, 1))
sketch5.addConstraint(Sketcher.Constraint("Coincident", 10, 2, 11, 1))
sketch5.addConstraint(Sketcher.Constraint("Coincident", 11, 2, 12, 1))
sketch5.addConstraint(Sketcher.Constraint("Tangent", 12, 2, 13, 1))
sketch5.addConstraint(Sketcher.Constraint("Tangent", 13, 2, 14, 1))
sketch5.addConstraint(Sketcher.Constraint("Tangent", 14, 2, 15, 2))
sketch5.addConstraint(Sketcher.Constraint("Tangent", 15, 1, 16, 1))
sketch5.addConstraint(Sketcher.Constraint("Tangent", 16, 2, 17, 2))
sketch5.addConstraint(Sketcher.Constraint("Tangent", 17, 1, 18, 1))
sketch5.addConstraint(Sketcher.Constraint("Tangent", 18, 2, 19, 1))
sketch5.addConstraint(Sketcher.Constraint("Tangent", 19, 2, 0, 1))
sketch5.addConstraint(Sketcher.Constraint("Horizontal", 0))
sketch5.addConstraint(Sketcher.Constraint("Vertical", 1))
sketch5.addConstraint(Sketcher.Constraint("Horizontal", 2))
sketch5.addConstraint(Sketcher.Constraint("Horizontal", 6))
sketch5.addConstraint(Sketcher.Constraint("Horizontal", 10))
sketch5.addConstraint(Sketcher.Constraint("Vertical", 11))
sketch5.addConstraint(Sketcher.Constraint("Horizontal", 12))
sketch5.addConstraint(Sketcher.Constraint("Horizontal", 16))
sketch5.addConstraint(Sketcher.Constraint("Equal", 5, 7))
sketch5.addConstraint(Sketcher.Constraint("Equal", 3, 9))
sketch5.addConstraint(Sketcher.Constraint("Equal", 9, 13))
sketch5.addConstraint(Sketcher.Constraint("Equal", 7, 15))
sketch5.addConstraint(Sketcher.Constraint("Equal", 15, 17))
sketch5.addConstraint(Sketcher.Constraint("Equal", 13, 19))
sketch5.addConstraint(Sketcher.Constraint("Symmetric", 3, 3, 13, 3, -1, 1))
sketch5.addConstraint(Sketcher.Constraint("Symmetric", 5, 3, 15, 3, -1, 1))
sketch5.addConstraint(Sketcher.Constraint("Symmetric", 9, 3, 19, 3, -1, 1))
sketch5.addConstraint(Sketcher.Constraint("Symmetric", 3, 3, 9, 3, -2))
sketch5.addConstraint(Sketcher.Constraint("Parallel", 8, 18))
sketch5.addConstraint(Sketcher.Constraint("Horizontal", 4, 2, 7, 1))
sketch5.addConstraint(Sketcher.Constraint("Equal", 2, 10))
sketch5.addConstraint(Sketcher.Constraint("Radius", 3, Q("4 mm")))
sketch5.addConstraint(Sketcher.Constraint("Radius", 5, Q("8 mm")))
sketch5.addConstraint(Sketcher.Constraint("DistanceY", 1, 1, 1, 2, Q("60 mm")))
sketch5.addConstraint(Sketcher.Constraint("DistanceX", -1, 1, 0, 2, Q("60 mm")))
sketch5.addConstraint(Sketcher.Constraint("DistanceY", 15, 3, 7, 3, Q("21 mm")))
sketch5.addConstraint(Sketcher.Constraint("DistanceX", 6, 2, 6, 1, Q("86.662 mm")))
sketch5.addConstraint(Sketcher.Constraint("DistanceX", 0, 1, 0, 2, Q("1.919929 mm")))
pad5 = body5.newObject("PartDesign::Pad", "Pad004")
pad5.Profile = sketch5
pad5.Length = 1000

doc.recompute()
